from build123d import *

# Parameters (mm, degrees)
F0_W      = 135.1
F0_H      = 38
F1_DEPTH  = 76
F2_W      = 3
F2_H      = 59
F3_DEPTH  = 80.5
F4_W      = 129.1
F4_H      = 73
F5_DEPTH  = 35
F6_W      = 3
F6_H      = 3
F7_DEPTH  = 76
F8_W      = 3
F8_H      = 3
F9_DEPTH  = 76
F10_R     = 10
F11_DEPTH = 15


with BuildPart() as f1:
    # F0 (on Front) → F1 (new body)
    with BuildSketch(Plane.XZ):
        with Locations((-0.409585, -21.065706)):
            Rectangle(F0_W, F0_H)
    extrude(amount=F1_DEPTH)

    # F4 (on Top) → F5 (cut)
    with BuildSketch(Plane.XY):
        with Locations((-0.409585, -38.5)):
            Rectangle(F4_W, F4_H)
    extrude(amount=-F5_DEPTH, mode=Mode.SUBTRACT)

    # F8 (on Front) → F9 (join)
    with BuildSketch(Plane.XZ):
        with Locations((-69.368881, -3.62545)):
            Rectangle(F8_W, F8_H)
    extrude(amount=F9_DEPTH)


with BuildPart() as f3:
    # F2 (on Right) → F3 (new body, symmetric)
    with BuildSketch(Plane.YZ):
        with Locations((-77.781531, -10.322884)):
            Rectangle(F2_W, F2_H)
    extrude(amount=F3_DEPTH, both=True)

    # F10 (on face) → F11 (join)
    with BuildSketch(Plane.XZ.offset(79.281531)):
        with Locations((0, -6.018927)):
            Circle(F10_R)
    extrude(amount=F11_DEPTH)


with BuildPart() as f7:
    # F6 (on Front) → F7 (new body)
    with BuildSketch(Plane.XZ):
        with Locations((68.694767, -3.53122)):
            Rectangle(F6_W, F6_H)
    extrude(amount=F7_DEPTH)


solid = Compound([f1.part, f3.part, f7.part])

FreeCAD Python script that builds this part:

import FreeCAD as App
import Part
import Sketcher
from FreeCAD import Vector

doc = App.newDocument("Part")
body = doc.addObject("PartDesign::Body", "Body")

# Sketch on XZ plane
sketch1 = doc.addObject("Sketcher::SketchObject", "Sketch")
body.addObject(sketch1)
sketch1.AttachmentSupport = (doc.XZ_Plane, [""])
sketch1.MapMode = "FlatFace"
sketch1.addGeometry(Part.LineSegment(Vector(-68, -2, 0), Vector(-68, -40, 0)), False)
sketch1.addGeometry(Part.LineSegment(Vector(-68, -40, 0), Vector(67, -40, 0)), False)
sketch1.addGeometry(Part.LineSegment(Vector(67, -40, 0), Vector(67, -2, 0)), False)
sketch1.addGeometry(Part.LineSegment(Vector(67, -2, 0), Vector(-68, -2, 0)), False)
sketch1.addConstraint(Sketcher.Constraint("Coincident", 0, 2, 1, 1))
sketch1.addConstraint(Sketcher.Constraint("Coincident", 1, 2, 2, 1))
sketch1.addConstraint(Sketcher.Constraint("Coincident", 2, 2, 3, 1))
sketch1.addConstraint(Sketcher.Constraint("Coincident", 3, 2, 0, 1))
sketch1.addConstraint(Sketcher.Constraint("Vertical", 0))
sketch1.addConstraint(Sketcher.Constraint("Horizontal", 1))
sketch1.addConstraint(Sketcher.Constraint("Vertical", 2))
sketch1.addConstraint(Sketcher.Constraint("Horizontal", 3))
sketch1.addConstraint(Sketcher.Constraint("DistanceY", 0, 2, 0, 1, 38.0))
sketch1.addConstraint(Sketcher.Constraint("DistanceX", 1, 1, 1, 2, 135.1))
sketch1.addConstraint(Sketcher.Constraint("DistanceX", 0, 2, -1, 1, 67.959585))
sketch1.addConstraint(Sketcher.Constraint("DistanceY", 0, 2, -1, 1, 40.065706))
pad1 = doc.addObject("PartDesign::Pad", "Pad")
body.addObject(pad1)
pad1.Profile = sketch1
pad1.Length = 76

# Sketch on XY plane
sketch2 = doc.addObject("Sketcher::SketchObject", "Sketch001")
body.addObject(sketch2)
sketch2.AttachmentSupport = (doc.XY_Plane, [""])
sketch2.MapMode = "FlatFace"
sketch2.addGeometry(Part.LineSegment(Vector(-65, -2, 0), Vector(-65, -75, 0)), False)
sketch2.addGeometry(Part.LineSegment(Vector(-65, -75, 0), Vector(64, -75, 0)), False)
sketch2.addGeometry(Part.LineSegment(Vector(64, -75, 0), Vector(64, -2, 0)), False)
sketch2.addGeometry(Part.LineSegment(Vector(64, -2, 0), Vector(-65, -2, 0)), False)
sketch2.addConstraint(Sketcher.Constraint("Coincident", 0, 2, 1, 1))
sketch2.addConstraint(Sketcher.Constraint("Coincident", 1, 2, 2, 1))
sketch2.addConstraint(Sketcher.Constraint("Coincident", 2, 2, 3, 1))
sketch2.addConstraint(Sketcher.Constraint("Coincident", 3, 2, 0, 1))
sketch2.addConstraint(Sketcher.Constraint("Vertical", 0))
sketch2.addConstraint(Sketcher.Constraint("Horizontal", 1))
sketch2.addConstraint(Sketcher.Constraint("Vertical", 2))
sketch2.addConstraint(Sketcher.Constraint("Horizontal", 3))
sketch2.addConstraint(Sketcher.Constraint("DistanceY", 0, 2, 0, 1, 73.0))
sketch2.addConstraint(Sketcher.Constraint("DistanceX", 1, 1, 1, 2, 129.1))
sketch2.addConstraint(Sketcher.Constraint("DistanceY", 0, 2, -1, 1, 75.0))
sketch2.addConstraint(Sketcher.Constraint("DistanceX", 0, 2, -1, 1, 64.959585))
pocket1 = doc.addObject("PartDesign::Pocket", "Pocket")
body.addObject(pocket1)
pocket1.Profile = sketch2
pocket1.Length = 35

# Sketch on XZ plane
sketch3 = doc.addObject("Sketcher::SketchObject", "Sketch002")
body.addObject(sketch3)
sketch3.AttachmentSupport = (doc.XZ_Plane, [""])
sketch3.MapMode = "FlatFace"
sketch3.addGeometry(Part.LineSegment(Vector(-70.9, -2.1, 0), Vector(-70.9, -5.1, 0)), False)
sketch3.addGeometry(Part.LineSegment(Vector(-70.9, -5.1, 0), Vector(-67.9, -5.1, 0)), False)
sketch3.addGeometry(Part.LineSegment(Vector(-67.9, -5.1, 0), Vector(-67.9, -2.1, 0)), False)
sketch3.addGeometry(Part.LineSegment(Vector(-67.9, -2.1, 0), Vector(-70.9, -2.1, 0)), False)
sketch3.addConstraint(Sketcher.Constraint("Coincident", 0, 2, 1, 1))
sketch3.addConstraint(Sketcher.Constraint("Coincident", 1, 2, 2, 1))
sketch3.addConstraint(Sketcher.Constraint("Coincident", 2, 2, 3, 1))
sketch3.addConstraint(Sketcher.Constraint("Coincident", 3, 2, 0, 1))
sketch3.addConstraint(Sketcher.Constraint("Vertical", 0))
sketch3.addConstraint(Sketcher.Constraint("Horizontal", 1))
sketch3.addConstraint(Sketcher.Constraint("Vertical", 2))
sketch3.addConstraint(Sketcher.Constraint("Horizontal", 3))
sketch3.addConstraint(Sketcher.Constraint("Equal", 3, 0))
sketch3.addConstraint(Sketcher.Constraint("DistanceX", 1, 1, 1, 2, 3.0))
sketch3.addConstraint(Sketcher.Constraint("DistanceX", 0, 2, -1, 1, 70.868881))
sketch3.addConstraint(Sketcher.Constraint("DistanceY", 0, 2, -1, 1, 5.12545))
pad2 = doc.addObject("PartDesign::Pad", "Pad001")
body.addObject(pad2)
pad2.Profile = sketch3
pad2.Length = 76
body2 = doc.addObject("PartDesign::Body", "Body001")

# Sketch on YZ plane
sketch4 = doc.addObject("Sketcher::SketchObject", "Sketch003")
body2.addObject(sketch4)
sketch4.AttachmentSupport = (doc.getObject("YZ_Plane001"), [""])
sketch4.MapMode = "FlatFace"
sketch4.addGeometry(Part.LineSegment(Vector(-79.3, 19.2, 0), Vector(-79.3, -39.8, 0)), False)
sketch4.addGeometry(Part.LineSegment(Vector(-79.3, -39.8, 0), Vector(-76.3, -39.8, 0)), False)
sketch4.addGeometry(Part.LineSegment(Vector(-76.3, -39.8, 0), Vector(-76.3, 19.2, 0)), False)
sketch4.addGeometry(Part.LineSegment(Vector(-76.3, 19.2, 0), Vector(-79.3, 19.2, 0)), False)
sketch4.addConstraint(Sketcher.Constraint("Coincident", 0, 2, 1, 1))
sketch4.addConstraint(Sketcher.Constraint("Coincident", 1, 2, 2, 1))
sketch4.addConstraint(Sketcher.Constraint("Coincident", 2, 2, 3, 1))
sketch4.addConstraint(Sketcher.Constraint("Coincident", 3, 2, 0, 1))
sketch4.addConstraint(Sketcher.Constraint("Vertical", 0))
sketch4.addConstraint(Sketcher.Constraint("Horizontal", 1))
sketch4.addConstraint(Sketcher.Constraint("Vertical", 2))
sketch4.addConstraint(Sketcher.Constraint("Horizontal", 3))
sketch4.addConstraint(Sketcher.Constraint("DistanceX", 1, 1, 1, 2, 3.0))
sketch4.addConstraint(Sketcher.Constraint("DistanceY", 0, 2, 0, 1, 59.0))
sketch4.addConstraint(Sketcher.Constraint("DistanceX", 0, 2, -1, 1, 79.281531))
sketch4.addConstraint(Sketcher.Constraint("DistanceY", 0, 2, -1, 1, 39.822884))
pad3 = doc.addObject("PartDesign::Pad", "Pad002")
body2.addObject(pad3)
pad3.Profile = sketch4
pad3.Length = 161
pad3.Midplane = True

# Sketch on XZ plane
sketch5 = doc.addObject("Sketcher::SketchObject", "Sketch004")
body2.addObject(sketch5)
sketch5.AttachmentSupport = (doc.getObject("XZ_Plane001"), [""])
sketch5.MapMode = "FlatFace"
sketch5.AttachmentOffset = App.Placement(Vector(0, 0, 79.281531), App.Rotation())
sketch5.addGeometry(Part.Circle(Vector(0, -6, 0), Vector(0, 0, 1), 10), False)
sketch5.addConstraint(Sketcher.Constraint("PointOnObject", 0, 3, -2))
sketch5.addConstraint(Sketcher.Constraint("Diameter", 0, 20.0))
sketch5.addConstraint(Sketcher.Constraint("DistanceY", 0, 3, -1, 1, 6.018927))
pad4 = doc.addObject("PartDesign::Pad", "Pad003")
body2.addObject(pad4)
pad4.Profile = sketch5
pad4.Length = 15
body3 = doc.addObject("PartDesign::Body", "Body002")

# Sketch on XZ plane
sketch6 = doc.addObject("Sketcher::SketchObject", "Sketch005")
body3.addObject(sketch6)
sketch6.AttachmentSupport = (doc.getObject("XZ_Plane002"), [""])
sketch6.MapMode = "FlatFace"
sketch6.addGeometry(Part.LineSegment(Vector(67.2, -2, 0), Vector(67.2, -5, 0)), False)
sketch6.addGeometry(Part.LineSegment(Vector(67.2, -5, 0), Vector(70.2, -5, 0)), False)
sketch6.addGeometry(Part.LineSegment(Vector(70.2, -5, 0), Vector(70.2, -2, 0)), False)
sketch6.addGeometry(Part.LineSegment(Vector(70.2, -2, 0), Vector(67.2, -2, 0)), False)
sketch6.addConstraint(Sketcher.Constraint("Coincident", 0, 2, 1, 1))
sketch6.addConstraint(Sketcher.Constraint("Coincident", 1, 2, 2, 1))
sketch6.addConstraint(Sketcher.Constraint("Coincident", 2, 2, 3, 1))
sketch6.addConstraint(Sketcher.Constraint("Coincident", 3, 2, 0, 1))
sketch6.addConstraint(Sketcher.Constraint("Vertical", 0))
sketch6.addConstraint(Sketcher.Constraint("Horizontal", 1))
sketch6.addConstraint(Sketcher.Constraint("Vertical", 2))
sketch6.addConstraint(Sketcher.Constraint("Horizontal", 3))
sketch6.addConstraint(Sketcher.Constraint("Equal", 3, 0))
sketch6.addConstraint(Sketcher.Constraint("DistanceX", 1, 1, 1, 2, 3.0))
sketch6.addConstraint(Sketcher.Constraint("DistanceY", 0, 2, -1, 1, 5.03122))
sketch6.addConstraint(Sketcher.Constraint("DistanceX", -1, 1, 0, 2, 67.194767))
pad5 = doc.addObject("PartDesign::Pad", "Pad004")
body3.addObject(pad5)
pad5.Profile = sketch6
pad5.Length = 76

doc.recompute()
